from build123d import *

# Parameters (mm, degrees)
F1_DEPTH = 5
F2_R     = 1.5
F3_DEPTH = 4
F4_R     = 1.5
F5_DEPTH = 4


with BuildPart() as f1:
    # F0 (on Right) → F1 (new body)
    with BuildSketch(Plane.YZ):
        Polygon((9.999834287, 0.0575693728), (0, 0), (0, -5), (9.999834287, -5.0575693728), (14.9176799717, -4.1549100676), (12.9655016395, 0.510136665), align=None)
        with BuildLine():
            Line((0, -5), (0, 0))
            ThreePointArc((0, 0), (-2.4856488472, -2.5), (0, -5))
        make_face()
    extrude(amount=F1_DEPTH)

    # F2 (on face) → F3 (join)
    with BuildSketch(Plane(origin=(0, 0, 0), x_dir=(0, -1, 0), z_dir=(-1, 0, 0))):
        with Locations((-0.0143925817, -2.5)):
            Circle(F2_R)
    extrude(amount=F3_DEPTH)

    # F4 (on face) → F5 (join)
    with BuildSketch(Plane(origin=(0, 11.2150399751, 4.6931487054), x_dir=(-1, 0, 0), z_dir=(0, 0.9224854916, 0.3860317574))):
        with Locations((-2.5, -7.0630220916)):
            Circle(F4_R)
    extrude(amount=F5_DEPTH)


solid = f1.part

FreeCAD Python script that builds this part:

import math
import FreeCAD as App
import Part
import Sketcher

V = App.Vector
Q = App.Units.Quantity

doc = App.newDocument("Part")
params = doc.addObject("Spreadsheet::Sheet", "Params")
for row, (alias, value) in enumerate([
    ("sketch1_length", "10 mm"),
    ("sketch1_length2", "5 mm"),
    ("sketch1_length3", "3 mm"),
    ("pad1_length", "5 mm"),
    ("sketch2_diameter", "3 mm"),
    ("pad2_length", "4 mm"),
    ("sketch3_diameter", "3 mm"),
    ("pad3_length", "4 mm"),
], start=1):
    params.set(f"A{row}", alias)
    params.set(f"B{row}", "=" + value)
    params.setAlias(f"B{row}", alias)

body = doc.addObject("PartDesign::Body", "Body")

sketch1 = body.newObject("Sketcher::SketchObject", "Sketch")
sketch1.AttachmentSupport = (doc.getObject("YZ_Plane"), [""])
sketch1.MapMode = "FlatFace"
sketch1.addGeometry([
    Part.LineSegment(V(10, 0.1, 0), V(0, 0, 0)),
    Part.ArcOfCircle(Part.Circle(V(0, -2.5, 0), V(0, 0, 1), 2.5), math.radians(90), math.radians(270)),
    Part.LineSegment(V(0, -5, 0), V(10, -5.1, 0)),
    Part.LineSegment(V(10, -5.1, 0), V(14.9, -4.2, 0)),
    Part.LineSegment(V(14.9, -4.2, 0), V(13, 0.5, 0)),
    Part.LineSegment(V(13, 0.5, 0), V(10, 0.1, 0)),
], False)
sketch1.addConstraint([
    Sketcher.Constraint("Tangent", 0, 2, 1, 1),
    Sketcher.Constraint("Tangent", 1, 2, 2, 1),
    Sketcher.Constraint("Coincident", 2, 2, 3, 1),
    Sketcher.Constraint("Coincident", 3, 2, 4, 1),
    Sketcher.Constraint("Coincident", 4, 2, 5, 1),
    Sketcher.Constraint("Coincident", 5, 2, 0, 1),
    Sketcher.Constraint("Coincident", 0, 2, -1, 1),
    Sketcher.Constraint("PointOnObject", 1, 2, -2),
    Sketcher.Constraint("Vertical", 2, 2, 5, 2),
    Sketcher.Constraint("Distance", 0, Q("10 mm")),
    Sketcher.Constraint("Distance", 3, Q("5 mm")),
    Sketcher.Constraint("Distance", 5, Q("3 mm")),
    Sketcher.Constraint("DistanceY", 1, 2, -1, 1, Q("5 mm")),
    Sketcher.Constraint("DistanceX", -1, 1, 4, 2, Q("12.965502 mm")),
    Sketcher.Constraint("Distance", 4, Q("5.057041 mm")),
    Sketcher.Constraint("DistanceY", 2, 2, -1, 1, Q("5.057569 mm")),
])
sketch1.setExpression("Constraints[9]", "Params.sketch1_length")
sketch1.setExpression("Constraints[10]", "Params.sketch1_length2")
sketch1.setExpression("Constraints[11]", "Params.sketch1_length3")
pad1 = body.newObject("PartDesign::Pad", "Pad")
pad1.Profile = sketch1
pad1.setExpression("Length", "Params.pad1_length")

sketch2 = body.newObject("Sketcher::SketchObject", "Sketch001")
sketch2.AttachmentSupport = (doc.getObject("YZ_Plane"), [""])
sketch2.MapMode = "FlatFace"
sketch2.addGeometry(Part.Circle(V(0, -2.5, 0), V(0, 0, 1), 1.5), False)
sketch2.addConstraint([
    Sketcher.Constraint("Diameter", 0, Q("3 mm")),
    Sketcher.Constraint("DistanceY", 0, 3, -1, 1, Q("2.5 mm")),
    Sketcher.Constraint("DistanceX", -1, 1, 0, 3, Q("0.014393 mm")),
])
sketch2.setExpression("Constraints[0]", "Params.sketch2_diameter")
pad2 = body.newObject("PartDesign::Pad", "Pad001")
pad2.Profile = sketch2
pad2.setExpression("Length", "Params.pad2_length")
pad2.Reversed = True

sketch3 = body.newObject("Sketcher::SketchObject", "Sketch002")
sketch3.Placement = App.Placement(V(0, 11.21504, 4.693149), App.Rotation(V(-1, 0, 0), V(0, -0.386031757, 0.922485492), V(0, 0.922485492, 0.386031757), "ZXY"))
sketch3.addGeometry(Part.Circle(V(-2.5, -7.1, 0), V(0, 0, 1), 1.5), False)
sketch3.addConstraint([
    Sketcher.Constraint("Diameter", 0, Q("3 mm")),
    Sketcher.Constraint("DistanceX", 0, 3, -1, 1, Q("2.5 mm")),
    Sketcher.Constraint("DistanceY", 0, 3, -1, 1, Q("7.063022 mm")),
])
sketch3.setExpression("Constraints[0]", "Params.sketch3_diameter")
pad3 = body.newObject("PartDesign::Pad", "Pad002")
pad3.Profile = sketch3
pad3.setExpression("Length", "Params.pad3_length")

doc.recompute()
